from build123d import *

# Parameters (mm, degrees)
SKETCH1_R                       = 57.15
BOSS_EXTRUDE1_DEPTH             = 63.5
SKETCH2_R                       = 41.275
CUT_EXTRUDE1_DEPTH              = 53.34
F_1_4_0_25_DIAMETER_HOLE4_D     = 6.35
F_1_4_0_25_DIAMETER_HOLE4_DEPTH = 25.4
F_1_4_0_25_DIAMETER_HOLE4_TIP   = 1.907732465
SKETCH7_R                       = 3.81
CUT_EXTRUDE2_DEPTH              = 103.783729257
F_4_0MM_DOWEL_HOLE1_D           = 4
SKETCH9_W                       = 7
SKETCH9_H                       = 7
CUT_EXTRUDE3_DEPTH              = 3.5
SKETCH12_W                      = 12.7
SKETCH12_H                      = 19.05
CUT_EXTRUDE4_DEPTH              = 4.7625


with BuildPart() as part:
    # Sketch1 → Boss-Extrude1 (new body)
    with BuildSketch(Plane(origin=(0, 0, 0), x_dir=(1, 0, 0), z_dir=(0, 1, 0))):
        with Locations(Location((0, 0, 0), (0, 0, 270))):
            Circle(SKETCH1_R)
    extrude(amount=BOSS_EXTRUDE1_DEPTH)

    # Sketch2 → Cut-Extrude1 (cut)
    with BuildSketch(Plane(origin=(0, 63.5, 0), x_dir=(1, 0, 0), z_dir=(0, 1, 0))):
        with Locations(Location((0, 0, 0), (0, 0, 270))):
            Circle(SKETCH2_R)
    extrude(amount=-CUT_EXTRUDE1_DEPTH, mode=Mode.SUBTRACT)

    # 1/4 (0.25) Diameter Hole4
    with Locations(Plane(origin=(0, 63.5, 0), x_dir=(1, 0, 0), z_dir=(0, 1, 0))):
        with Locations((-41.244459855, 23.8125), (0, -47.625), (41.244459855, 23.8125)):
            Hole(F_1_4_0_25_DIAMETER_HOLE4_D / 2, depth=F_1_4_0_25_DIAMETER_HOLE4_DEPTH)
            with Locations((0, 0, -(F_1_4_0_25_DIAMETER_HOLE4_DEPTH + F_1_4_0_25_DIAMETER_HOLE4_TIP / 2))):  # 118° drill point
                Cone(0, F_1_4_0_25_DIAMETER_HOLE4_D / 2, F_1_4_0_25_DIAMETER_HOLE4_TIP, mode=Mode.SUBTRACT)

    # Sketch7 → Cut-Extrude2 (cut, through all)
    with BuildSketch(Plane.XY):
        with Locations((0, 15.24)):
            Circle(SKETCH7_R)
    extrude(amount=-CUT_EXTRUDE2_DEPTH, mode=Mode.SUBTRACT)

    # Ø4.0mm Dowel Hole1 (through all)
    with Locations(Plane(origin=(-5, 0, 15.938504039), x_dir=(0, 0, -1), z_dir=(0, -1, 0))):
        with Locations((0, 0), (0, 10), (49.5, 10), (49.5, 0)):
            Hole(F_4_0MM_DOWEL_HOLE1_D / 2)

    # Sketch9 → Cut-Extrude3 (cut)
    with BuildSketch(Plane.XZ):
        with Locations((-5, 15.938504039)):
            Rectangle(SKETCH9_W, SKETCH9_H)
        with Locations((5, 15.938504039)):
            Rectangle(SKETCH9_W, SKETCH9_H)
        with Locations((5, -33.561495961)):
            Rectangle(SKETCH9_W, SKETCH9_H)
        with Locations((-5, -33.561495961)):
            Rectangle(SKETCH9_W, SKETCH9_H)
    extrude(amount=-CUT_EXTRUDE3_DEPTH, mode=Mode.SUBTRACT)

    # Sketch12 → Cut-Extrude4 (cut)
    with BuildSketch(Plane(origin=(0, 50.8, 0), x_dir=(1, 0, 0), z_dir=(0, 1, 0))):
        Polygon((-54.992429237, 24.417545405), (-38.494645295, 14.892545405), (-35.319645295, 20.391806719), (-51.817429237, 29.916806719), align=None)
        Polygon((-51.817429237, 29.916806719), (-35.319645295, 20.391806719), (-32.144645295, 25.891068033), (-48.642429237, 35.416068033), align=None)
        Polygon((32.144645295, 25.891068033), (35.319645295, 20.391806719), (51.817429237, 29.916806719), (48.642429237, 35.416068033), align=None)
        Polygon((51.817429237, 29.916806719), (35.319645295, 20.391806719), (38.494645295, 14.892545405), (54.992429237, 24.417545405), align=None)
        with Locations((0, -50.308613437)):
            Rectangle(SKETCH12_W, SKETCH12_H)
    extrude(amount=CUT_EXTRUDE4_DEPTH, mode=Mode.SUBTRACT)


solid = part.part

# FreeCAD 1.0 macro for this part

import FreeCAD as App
import Part
import Sketcher

V = App.Vector
Q = App.Units.Quantity


def add_polygon(sketch, points):
    """Adds a closed chain of lines whose ends are joined by coincident constraints."""
    first, n = sketch.GeometryCount, len(points)
    for a, b in zip(points, points[1:] + points[:1]):
        sketch.addGeometry(Part.LineSegment(App.Vector(*a, 0), App.Vector(*b, 0)), False)
    for i in range(n):
        sketch.addConstraint(Sketcher.Constraint("Coincident", first + i, 2, first + (i + 1) % n, 1))

doc = App.newDocument("Part")
body = doc.addObject("PartDesign::Body", "Body")

# Sketch on XZ plane
sketch1 = body.newObject("Sketcher::SketchObject", "Sketch")
sketch1.AttachmentSupport = (doc.getObject("XZ_Plane"), [""])
sketch1.MapMode = "FlatFace"
sketch1.addGeometry(Part.Circle(V(0, 0, 0), V(0, 0, 1), 57), False)
sketch1.addConstraint([
    Sketcher.Constraint("Coincident", 0, 3, -1, 1),
    Sketcher.Constraint("Diameter", 0, Q("4.5 in")),
])
pad1 = body.newObject("PartDesign::Pad", "Pad")
pad1.Profile = sketch1
pad1.Length = Q("2.5 in")
pad1.Reversed = True

# Sketch on XZ plane
sketch2 = body.newObject("Sketcher::SketchObject", "Sketch001")
sketch2.AttachmentSupport = (doc.getObject("XZ_Plane"), [""])
sketch2.MapMode = "FlatFace"
sketch2.AttachmentOffset = App.Placement(V(0, 0, -2.5 * 25.4), App.Rotation())
sketch2.addGeometry(Part.Circle(V(0, 0, 0), V(0, 0, 1), 41), False)
sketch2.addConstraint([
    Sketcher.Constraint("Coincident", 0, 3, -1, 1),
    Sketcher.Constraint("Diameter", 0, Q("3.25 in")),
])
pocket1 = body.newObject("PartDesign::Pocket", "Pocket")
pocket1.Profile = sketch2
pocket1.Length = Q("2.1 in")
pocket1.Reversed = True

# Sketch on XZ plane
sketch3 = body.newObject("Sketcher::SketchObject", "Sketch002")
sketch3.AttachmentSupport = (doc.getObject("XZ_Plane"), [""])
sketch3.MapMode = "FlatFace"
sketch3.AttachmentOffset = App.Placement(V(0, 0, -2.5 * 25.4), App.Rotation())
sketch3.addGeometry([
    Part.Circle(V(-41.2, -23.8, 0), V(0, 0, 1), 3.2),
    Part.Circle(V(0, 47.6, 0), V(0, 0, 1), 3.2),
    Part.Circle(V(41.2, -23.8, 0), V(0, 0, 1), 3.2),
], False)
sketch3.addConstraint([
    Sketcher.Constraint("Equal", 0, 1),
    Sketcher.Constraint("Equal", 1, 2),
    Sketcher.Constraint("Symmetric", 0, 3, 2, 3, -2),
    Sketcher.Constraint("PointOnObject", 1, 3, -2),
    Sketcher.Constraint("Diameter", 0, Q("0.25 in")),
    Sketcher.Constraint("DistanceY", 0, 3, -1, 1, Q("0.9375 in")),
    Sketcher.Constraint("DistanceY", -1, 1, 1, 3, Q("1.875 in")),
    Sketcher.Constraint("DistanceX", 0, 3, -1, 1, 41.24446),
])
doc.recompute()
hole = body.newObject("PartDesign::Hole", "Hole")
hole.Profile = sketch3
hole.ThreadType = "None"
hole.Diameter = Q("0.25 in")
hole.DepthType = "Dimension"
hole.Depth = Q("1 in")
hole.DrillPoint = "Angled"
hole.DrillPointAngle = 118
hole.Reversed = True

# Sketch on XY plane
sketch4 = body.newObject("Sketcher::SketchObject", "Sketch003")
sketch4.AttachmentSupport = (doc.getObject("XY_Plane"), [""])
sketch4.MapMode = "FlatFace"
sketch4.addGeometry(Part.Circle(V(0, 15.2, 0), V(0, 0, 1), 3.8), False)
sketch4.addConstraint([
    Sketcher.Constraint("PointOnObject", 0, 3, -2),
    Sketcher.Constraint("Diameter", 0, Q("0.3 in")),
    Sketcher.Constraint("DistanceY", -1, 1, 0, 3, Q("0.6 in")),
])
pocket2 = body.newObject("PartDesign::Pocket", "Pocket001")
pocket2.Profile = sketch4
pocket2.Type = "ThroughAll"

# Sketch on XZ plane
sketch5 = body.newObject("Sketcher::SketchObject", "Sketch004")
sketch5.AttachmentSupport = (doc.getObject("XZ_Plane"), [""])
sketch5.MapMode = "FlatFace"
sketch5.addGeometry([
    Part.Circle(V(-5, 15.9, 0), V(0, 0, 1), 2),
    Part.Circle(V(5, 15.9, 0), V(0, 0, 1), 2),
    Part.Circle(V(5, -33.6, 0), V(0, 0, 1), 2),
    Part.Circle(V(-5, -33.6, 0), V(0, 0, 1), 2),
], False)
sketch5.addConstraint([
    Sketcher.Constraint("Equal", 0, 1),
    Sketcher.Constraint("Equal", 1, 2),
    Sketcher.Constraint("Equal", 2, 3),
    Sketcher.Constraint("Symmetric", 0, 3, 1, 3, -2),
    Sketcher.Constraint("Symmetric", 2, 3, 3, 3, -2),
    Sketcher.Constraint("Vertical", 1, 3, 2, 3),
    Sketcher.Constraint("Diameter", 0, 4.0),
    Sketcher.Constraint("DistanceY", -1, 1, 0, 3, Q("0.6275002 in")),
    Sketcher.Constraint("DistanceX", 0, 3, -1, 1, 5.0),
    Sketcher.Constraint("DistanceY", 2, 3, 1, 3, 49.5),
])
doc.recompute()
hole2 = body.newObject("PartDesign::Hole", "Hole001")
hole2.Profile = sketch5
hole2.ThreadType = "None"
hole2.Diameter = 4
hole2.DepthType = "ThroughAll"

# Sketch on XZ plane
sketch6 = body.newObject("Sketcher::SketchObject", "Sketch005")
sketch6.AttachmentSupport = (doc.getObject("XZ_Plane"), [""])
sketch6.MapMode = "FlatFace"
add_polygon(sketch6, [(-8, 19), (-8, 12), (-2, 12), (-2, 19)])  # lines 0-3
add_polygon(sketch6, [(2, 19), (2, 12), (8, 12), (8, 19)])  # lines 4-7
add_polygon(sketch6, [(2, -30), (2, -37), (8, -37), (8, -30)])  # lines 8-11
add_polygon(sketch6, [(-8, -30), (-8, -37), (-2, -37), (-2, -30)])  # lines 12-15
sketch6.addConstraint([
    Sketcher.Constraint("Vertical", 0),
    Sketcher.Constraint("Horizontal", 1),
    Sketcher.Constraint("Vertical", 2),
    Sketcher.Constraint("Horizontal", 3),
    Sketcher.Constraint("Vertical", 4),
    Sketcher.Constraint("Horizontal", 5),
    Sketcher.Constraint("Vertical", 6),
    Sketcher.Constraint("Horizontal", 7),
    Sketcher.Constraint("Vertical", 8),
    Sketcher.Constraint("Horizontal", 9),
    Sketcher.Constraint("Vertical", 10),
    Sketcher.Constraint("Horizontal", 11),
    Sketcher.Constraint("Vertical", 12),
    Sketcher.Constraint("Horizontal", 13),
    Sketcher.Constraint("Vertical", 14),
    Sketcher.Constraint("Horizontal", 15),
    Sketcher.Constraint("Symmetric", 1, 2, 4, 2, -2),
    Sketcher.Constraint("Symmetric", 3, 2, 6, 2, -2),
    Sketcher.Constraint("Symmetric", 9, 2, 12, 2, -2),
    Sketcher.Constraint("Symmetric", 11, 2, 14, 2, -2),
    Sketcher.Constraint("Vertical", 7, 2, 8, 2),
    Sketcher.Constraint("Vertical", 6, 2, 9, 2),
    Sketcher.Constraint("Equal", 15, 0),
    Sketcher.Constraint("Equal", 6, 8),
    Sketcher.Constraint("DistanceX", 1, 1, 1, 2, 7.0),
    Sketcher.Constraint("DistanceX", 0, 2, -1, 1, 8.5),
    Sketcher.Constraint("DistanceY", 8, 2, 4, 2, 49.5),
    Sketcher.Constraint("DistanceY", -1, 1, 0, 2, 12.438504),
])
pocket3 = body.newObject("PartDesign::Pocket", "Pocket002")
pocket3.Profile = sketch6
pocket3.Length = 3.5

# Sketch on XZ plane
sketch7 = body.newObject("Sketcher::SketchObject", "Sketch006")
sketch7.AttachmentSupport = (doc.getObject("XZ_Plane"), [""])
sketch7.MapMode = "FlatFace"
sketch7.AttachmentOffset = App.Placement(V(0, 0, -2 * 25.4), App.Rotation())
add_polygon(sketch7, [(-55, -24), (-38, -15), (-32, -26), (-49, -35)])  # lines 0-3
add_polygon(sketch7, [(32, -26), (38, -15), (55, -24), (49, -35)])  # lines 4-7
add_polygon(sketch7, [(-6, 41), (-6, 60), (6, 60), (6, 41)])  # lines 8-11
sketch7.addConstraint([
    Sketcher.Constraint("Vertical", 8),
    Sketcher.Constraint("Horizontal", 9),
    Sketcher.Constraint("Vertical", 10),
    Sketcher.Constraint("Horizontal", 11),
    Sketcher.Constraint("Symmetric", 0, 2, 4, 2, -2),
    Sketcher.Constraint("Symmetric", 3, 2, 5, 2, -2),
    Sketcher.Constraint("Symmetric", 2, 2, 6, 2, -2),
    Sketcher.Constraint("Symmetric", 1, 2, 7, 2, -2),
    Sketcher.Constraint("Perpendicular", 0, 1),
    Sketcher.Constraint("Perpendicular", 1, 2),
    Sketcher.Constraint("Perpendicular", 2, 3),
    Sketcher.Constraint("DistanceX", 9, 1, 9, 2, Q("0.5 in")),
    Sketcher.Constraint("Angle", 0, Q("30 deg")),
    Sketcher.Constraint("Distance", 1, Q("0.5 in")),
    Sketcher.Constraint("DistanceY", 8, 1, 8, 2, Q("0.75 in")),
    Sketcher.Constraint("Distance", 0, Q("0.75 in")),
    Sketcher.Constraint("DistanceX", 8, 2, -1, 1, Q("0.25 in")),
    Sketcher.Constraint("DistanceY", 1, 2, -1, 1, 25.891068),
    Sketcher.Constraint("DistanceX", 2, 2, -1, 1, 48.642429),
    Sketcher.Constraint("DistanceY", 0, 2, 8, 2, 74.726159),
])
pocket4 = body.newObject("PartDesign::Pocket", "Pocket003")
pocket4.Profile = sketch7
pocket4.Length = Q("0.1875 in")

doc.recompute()
